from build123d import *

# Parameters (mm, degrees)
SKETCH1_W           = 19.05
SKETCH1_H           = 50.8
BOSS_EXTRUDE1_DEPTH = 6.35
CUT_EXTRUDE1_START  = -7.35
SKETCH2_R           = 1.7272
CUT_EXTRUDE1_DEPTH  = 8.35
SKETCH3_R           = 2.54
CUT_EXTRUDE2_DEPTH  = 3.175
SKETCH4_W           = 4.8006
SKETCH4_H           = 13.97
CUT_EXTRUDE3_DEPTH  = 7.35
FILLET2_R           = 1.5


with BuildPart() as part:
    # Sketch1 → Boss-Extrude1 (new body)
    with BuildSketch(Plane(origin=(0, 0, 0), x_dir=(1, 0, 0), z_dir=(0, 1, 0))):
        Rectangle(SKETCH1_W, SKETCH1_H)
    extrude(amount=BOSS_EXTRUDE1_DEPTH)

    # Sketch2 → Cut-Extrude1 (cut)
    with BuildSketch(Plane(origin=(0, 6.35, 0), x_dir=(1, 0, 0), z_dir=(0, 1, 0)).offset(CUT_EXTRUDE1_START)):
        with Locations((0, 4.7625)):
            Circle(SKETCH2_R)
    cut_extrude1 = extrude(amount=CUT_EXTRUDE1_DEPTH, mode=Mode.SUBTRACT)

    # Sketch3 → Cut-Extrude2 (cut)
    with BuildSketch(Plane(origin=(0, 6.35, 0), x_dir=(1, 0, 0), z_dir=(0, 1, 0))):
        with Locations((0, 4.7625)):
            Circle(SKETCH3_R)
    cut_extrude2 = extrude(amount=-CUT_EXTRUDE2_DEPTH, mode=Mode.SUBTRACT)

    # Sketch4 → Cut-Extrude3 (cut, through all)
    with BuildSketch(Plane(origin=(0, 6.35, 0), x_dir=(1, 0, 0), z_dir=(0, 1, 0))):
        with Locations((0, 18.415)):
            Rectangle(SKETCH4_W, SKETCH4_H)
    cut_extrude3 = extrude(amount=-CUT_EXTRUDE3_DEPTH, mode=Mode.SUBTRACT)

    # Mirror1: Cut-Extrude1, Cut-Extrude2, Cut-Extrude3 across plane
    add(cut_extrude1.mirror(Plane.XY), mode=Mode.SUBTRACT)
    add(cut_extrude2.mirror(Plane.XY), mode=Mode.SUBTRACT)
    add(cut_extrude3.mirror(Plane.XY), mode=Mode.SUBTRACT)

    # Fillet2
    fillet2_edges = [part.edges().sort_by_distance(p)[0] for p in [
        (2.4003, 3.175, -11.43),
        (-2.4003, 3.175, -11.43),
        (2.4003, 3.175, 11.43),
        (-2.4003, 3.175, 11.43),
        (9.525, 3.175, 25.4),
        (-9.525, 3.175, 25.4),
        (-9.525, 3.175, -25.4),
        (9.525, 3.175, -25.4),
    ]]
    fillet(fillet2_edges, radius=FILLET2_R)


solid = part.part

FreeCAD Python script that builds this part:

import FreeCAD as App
import Part
import Sketcher
from FreeCAD import Vector
Q = App.Units.Quantity


def edges_at(feature, points):
    """Names of the edges that pass closest to the given points."""
    edges = feature.Shape.Edges
    near = lambda p: min(range(len(edges)), key=lambda i: edges[i].distToShape(Part.Vertex(*p))[0])
    return sorted({f"Edge{near(p) + 1}" for p in points})

doc = App.newDocument("Part")
body = doc.addObject("PartDesign::Body", "Body")

sketch1 = body.newObject("Sketcher::SketchObject", "Sketch")
sketch1.AttachmentSupport = (doc.getObject("XZ_Plane"), [""])
sketch1.MapMode = "FlatFace"
sketch1.addGeometry(Part.LineSegment(Vector(-9.525, -25.4, 0), Vector(-9.525, 25.4, 0)), False)
sketch1.addGeometry(Part.LineSegment(Vector(-9.525, 25.4, 0), Vector(9.525, 25.4, 0)), False)
sketch1.addGeometry(Part.LineSegment(Vector(9.525, 25.4, 0), Vector(9.525, -25.4, 0)), False)
sketch1.addGeometry(Part.LineSegment(Vector(9.525, -25.4, 0), Vector(-9.525, -25.4, 0)), False)
sketch1.addConstraint(Sketcher.Constraint("Coincident", 0, 2, 1, 1))
sketch1.addConstraint(Sketcher.Constraint("Coincident", 1, 2, 2, 1))
sketch1.addConstraint(Sketcher.Constraint("Coincident", 2, 2, 3, 1))
sketch1.addConstraint(Sketcher.Constraint("Coincident", 3, 2, 0, 1))
sketch1.addConstraint(Sketcher.Constraint("Vertical", 0))
sketch1.addConstraint(Sketcher.Constraint("Horizontal", 1))
sketch1.addConstraint(Sketcher.Constraint("Vertical", 2))
sketch1.addConstraint(Sketcher.Constraint("Horizontal", 3))
sketch1.addConstraint(Sketcher.Constraint("Symmetric", 0, 2, 2, 2, -1, 1))
sketch1.addConstraint(Sketcher.Constraint("DistanceY", 0, 1, 0, 2, Q("2 in")))
sketch1.addConstraint(Sketcher.Constraint("DistanceX", 1, 1, 1, 2, Q("0.75 in")))
pad1 = body.newObject("PartDesign::Pad", "Pad")
pad1.Profile = sketch1
pad1.Length = Q("0.25 in")
pad1.Reversed = True

sketch2 = body.newObject("Sketcher::SketchObject", "Sketch001")
sketch2.AttachmentSupport = (doc.getObject("XZ_Plane"), [""])
sketch2.MapMode = "FlatFace"
sketch2.AttachmentOffset = App.Placement(Vector(0, 0, 1), App.Rotation())
sketch2.addGeometry(Part.Circle(Vector(0, -4.7625, 0), Vector(0, 0, 1), 1.7272), False)
sketch2.addConstraint(Sketcher.Constraint("PointOnObject", 0, 3, -2))
sketch2.addConstraint(Sketcher.Constraint("Diameter", 0, Q("0.136 in")))
sketch2.addConstraint(Sketcher.Constraint("DistanceY", 0, 3, -1, 1, Q("0.1875 in")))
pocket1 = body.newObject("PartDesign::Pocket", "Pocket")
pocket1.Profile = sketch2
pocket1.Length = 8.35

sketch3 = body.newObject("Sketcher::SketchObject", "Sketch002")
sketch3.AttachmentSupport = (doc.getObject("XZ_Plane"), [""])
sketch3.MapMode = "FlatFace"
sketch3.AttachmentOffset = App.Placement(Vector(0, 0, -0.25 * 25.4), App.Rotation())
sketch3.addGeometry(Part.Circle(Vector(0, -4.7625, 0), Vector(0, 0, 1), 2.54), False)
sketch3.addConstraint(Sketcher.Constraint("PointOnObject", 0, 3, -2))
sketch3.addConstraint(Sketcher.Constraint("Diameter", 0, Q("0.2 in")))
sketch3.addConstraint(Sketcher.Constraint("DistanceY", 0, 3, -1, 1, Q("0.1875 in")))
pocket2 = body.newObject("PartDesign::Pocket", "Pocket001")
pocket2.Profile = sketch3
pocket2.Length = Q("0.125 in")
pocket2.Reversed = True

sketch4 = body.newObject("Sketcher::SketchObject", "Sketch003")
sketch4.AttachmentSupport = (doc.getObject("XZ_Plane"), [""])
sketch4.MapMode = "FlatFace"
sketch4.AttachmentOffset = App.Placement(Vector(0, 0, -0.25 * 25.4), App.Rotation())
sketch4.addGeometry(Part.LineSegment(Vector(-2.4003, -25.4, 0), Vector(-2.4003, -11.43, 0)), False)
sketch4.addGeometry(Part.LineSegment(Vector(-2.4003, -11.43, 0), Vector(2.4003, -11.43, 0)), False)
sketch4.addGeometry(Part.LineSegment(Vector(2.4003, -11.43, 0), Vector(2.4003, -25.4, 0)), False)
sketch4.addGeometry(Part.LineSegment(Vector(2.4003, -25.4, 0), Vector(-2.4003, -25.4, 0)), False)
sketch4.addConstraint(Sketcher.Constraint("Coincident", 0, 2, 1, 1))
sketch4.addConstraint(Sketcher.Constraint("Coincident", 1, 2, 2, 1))
sketch4.addConstraint(Sketcher.Constraint("Coincident", 2, 2, 3, 1))
sketch4.addConstraint(Sketcher.Constraint("Coincident", 3, 2, 0, 1))
sketch4.addConstraint(Sketcher.Constraint("Vertical", 0))
sketch4.addConstraint(Sketcher.Constraint("Horizontal", 1))
sketch4.addConstraint(Sketcher.Constraint("Vertical", 2))
sketch4.addConstraint(Sketcher.Constraint("Horizontal", 3))
sketch4.addConstraint(Sketcher.Constraint("DistanceY", 2, 2, -1, 1, Q("1 in")))
sketch4.addConstraint(Sketcher.Constraint("DistanceY", 0, 1, 0, 2, Q("0.55 in")))
sketch4.addConstraint(Sketcher.Constraint("DistanceX", 1, 1, 1, 2, Q("0.189 in")))
sketch4.addConstraint(Sketcher.Constraint("DistanceX", 0, 2, -1, 1, Q("0.0945 in")))
pocket3 = body.newObject("PartDesign::Pocket", "Pocket002")
pocket3.Profile = sketch4
pocket3.Type = "ThroughAll"
pocket3.Reversed = True
doc.recompute()

mirrored = body.newObject("PartDesign::Mirrored", "Mirrored")
mirrored.Originals = [pocket1, pocket2, pocket3]
mirrored.MirrorPlane = (doc.getObject("XY_Plane"), [""])
body.Tip = mirrored
doc.recompute()

fillet = body.newObject("PartDesign::Fillet", "Fillet")
fillet.Base = (mirrored, edges_at(mirrored, [
    (2.4, 3.175, -11.43),
    (-2.4, 3.175, -11.43),
    (2.4, 3.175, 11.43),
    (-2.4, 3.175, 11.43),
    (9.525, 3.175, 25.4),
    (-9.525, 3.175, 25.4),
    (-9.525, 3.175, -25.4),
    (9.525, 3.175, -25.4),
]))
fillet.Radius = 1.5

doc.recompute()
